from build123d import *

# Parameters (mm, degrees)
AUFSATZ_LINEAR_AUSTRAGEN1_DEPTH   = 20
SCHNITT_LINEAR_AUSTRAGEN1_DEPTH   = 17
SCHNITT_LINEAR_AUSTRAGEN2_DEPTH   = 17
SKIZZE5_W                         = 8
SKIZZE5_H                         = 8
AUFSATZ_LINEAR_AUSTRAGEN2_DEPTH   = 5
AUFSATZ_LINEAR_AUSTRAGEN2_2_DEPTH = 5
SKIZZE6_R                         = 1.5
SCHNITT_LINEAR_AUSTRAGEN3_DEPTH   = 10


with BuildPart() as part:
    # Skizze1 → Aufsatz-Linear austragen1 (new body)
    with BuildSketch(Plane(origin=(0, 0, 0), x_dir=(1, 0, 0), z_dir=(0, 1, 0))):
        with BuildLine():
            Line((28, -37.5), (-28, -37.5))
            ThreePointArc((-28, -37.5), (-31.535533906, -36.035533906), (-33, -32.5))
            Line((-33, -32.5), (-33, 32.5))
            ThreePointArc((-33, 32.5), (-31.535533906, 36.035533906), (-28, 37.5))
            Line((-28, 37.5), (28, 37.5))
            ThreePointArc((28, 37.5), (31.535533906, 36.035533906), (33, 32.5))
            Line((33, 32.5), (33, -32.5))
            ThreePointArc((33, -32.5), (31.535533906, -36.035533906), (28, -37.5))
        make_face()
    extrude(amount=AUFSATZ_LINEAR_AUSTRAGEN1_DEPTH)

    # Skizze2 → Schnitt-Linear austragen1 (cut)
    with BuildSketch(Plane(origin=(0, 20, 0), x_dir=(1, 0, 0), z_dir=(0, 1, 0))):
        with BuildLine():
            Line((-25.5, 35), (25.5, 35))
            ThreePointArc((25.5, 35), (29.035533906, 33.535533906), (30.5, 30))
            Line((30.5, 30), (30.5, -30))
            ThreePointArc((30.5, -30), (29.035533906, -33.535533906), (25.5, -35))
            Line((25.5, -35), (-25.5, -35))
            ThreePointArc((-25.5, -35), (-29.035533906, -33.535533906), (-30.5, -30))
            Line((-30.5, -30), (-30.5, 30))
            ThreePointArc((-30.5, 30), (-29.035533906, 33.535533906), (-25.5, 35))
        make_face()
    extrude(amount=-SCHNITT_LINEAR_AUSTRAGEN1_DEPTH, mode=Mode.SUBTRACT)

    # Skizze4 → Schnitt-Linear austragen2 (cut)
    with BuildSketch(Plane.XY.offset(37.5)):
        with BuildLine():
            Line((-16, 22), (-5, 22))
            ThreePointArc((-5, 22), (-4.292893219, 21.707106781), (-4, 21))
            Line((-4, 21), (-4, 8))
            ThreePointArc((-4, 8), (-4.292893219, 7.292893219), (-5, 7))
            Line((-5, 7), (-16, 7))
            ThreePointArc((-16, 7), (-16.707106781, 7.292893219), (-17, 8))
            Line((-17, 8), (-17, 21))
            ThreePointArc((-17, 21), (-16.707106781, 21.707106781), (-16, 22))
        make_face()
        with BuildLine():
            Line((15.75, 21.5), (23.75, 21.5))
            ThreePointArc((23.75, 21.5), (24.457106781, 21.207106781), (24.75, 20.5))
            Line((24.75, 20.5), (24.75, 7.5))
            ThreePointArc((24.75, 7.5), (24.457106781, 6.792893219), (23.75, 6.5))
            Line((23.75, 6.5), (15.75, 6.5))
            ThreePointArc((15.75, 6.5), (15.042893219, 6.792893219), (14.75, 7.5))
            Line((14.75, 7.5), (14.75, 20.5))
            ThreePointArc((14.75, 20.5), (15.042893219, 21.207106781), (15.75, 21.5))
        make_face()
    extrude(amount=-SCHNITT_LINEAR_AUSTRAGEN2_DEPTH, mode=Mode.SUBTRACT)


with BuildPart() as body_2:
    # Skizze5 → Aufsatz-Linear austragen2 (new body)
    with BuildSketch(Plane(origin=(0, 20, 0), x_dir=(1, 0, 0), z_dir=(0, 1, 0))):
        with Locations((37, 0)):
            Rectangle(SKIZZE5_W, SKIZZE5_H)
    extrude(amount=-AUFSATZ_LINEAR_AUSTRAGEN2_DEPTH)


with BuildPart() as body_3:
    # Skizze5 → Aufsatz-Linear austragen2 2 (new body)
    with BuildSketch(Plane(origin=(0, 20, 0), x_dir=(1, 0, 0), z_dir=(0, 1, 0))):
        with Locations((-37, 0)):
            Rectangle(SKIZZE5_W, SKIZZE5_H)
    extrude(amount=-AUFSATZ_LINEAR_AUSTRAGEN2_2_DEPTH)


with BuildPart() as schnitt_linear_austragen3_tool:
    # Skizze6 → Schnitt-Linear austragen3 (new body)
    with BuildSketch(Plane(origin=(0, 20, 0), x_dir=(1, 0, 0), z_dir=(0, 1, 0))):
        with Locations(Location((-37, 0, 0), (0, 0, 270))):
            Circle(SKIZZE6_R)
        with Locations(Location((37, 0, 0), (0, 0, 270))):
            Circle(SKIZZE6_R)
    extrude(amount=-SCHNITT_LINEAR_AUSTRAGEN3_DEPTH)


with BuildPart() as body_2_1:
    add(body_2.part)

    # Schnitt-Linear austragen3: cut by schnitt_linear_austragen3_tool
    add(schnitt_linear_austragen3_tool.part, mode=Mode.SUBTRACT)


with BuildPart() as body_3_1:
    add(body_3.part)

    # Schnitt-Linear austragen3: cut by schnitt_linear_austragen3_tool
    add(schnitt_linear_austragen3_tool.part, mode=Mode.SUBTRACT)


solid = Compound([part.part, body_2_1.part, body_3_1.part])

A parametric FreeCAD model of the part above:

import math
import FreeCAD as App
import Part
import Sketcher

V = App.Vector
Q = App.Units.Quantity


def add_polygon(sketch, points):
    """Adds a closed chain of lines whose ends are joined by coincident constraints."""
    first, n = sketch.GeometryCount, len(points)
    for a, b in zip(points, points[1:] + points[:1]):
        sketch.addGeometry(Part.LineSegment(App.Vector(*a, 0), App.Vector(*b, 0)), False)
    for i in range(n):
        sketch.addConstraint(Sketcher.Constraint("Coincident", first + i, 2, first + (i + 1) % n, 1))

doc = App.newDocument("Part")
body = doc.addObject("PartDesign::Body", "Body")

# Sketch on XZ plane
sketch1 = body.newObject("Sketcher::SketchObject", "Sketch")
sketch1.AttachmentSupport = (doc.getObject("XZ_Plane"), [""])
sketch1.MapMode = "FlatFace"
sketch1.addGeometry([
    Part.LineSegment(V(-28, 38, 0), V(28, 38, 0)),  # 0
    Part.ArcOfCircle(Part.Circle(V(28, 32, 0), V(0, 0, 1), 5), math.radians(0), math.radians(90)),  # 1
    Part.LineSegment(V(33, 32, 0), V(33, -32, 0)),  # 2
    Part.ArcOfCircle(Part.Circle(V(28, -32, 0), V(0, 0, 1), 5), math.radians(-90), math.radians(0)),  # 3
    Part.LineSegment(V(28, -38, 0), V(-28, -38, 0)),  # 4
    Part.ArcOfCircle(Part.Circle(V(-28, -32, 0), V(0, 0, 1), 5), math.radians(180), math.radians(270)),  # 5
    Part.LineSegment(V(-33, -32, 0), V(-33, 32, 0)),  # 6
    Part.ArcOfCircle(Part.Circle(V(-28, 32, 0), V(0, 0, 1), 5), math.radians(90), math.radians(180)),  # 7
], False)
sketch1.addConstraint([
    Sketcher.Constraint("Tangent", 0, 2, 1, 2),
    Sketcher.Constraint("Tangent", 1, 1, 2, 1),
    Sketcher.Constraint("Tangent", 2, 2, 3, 2),
    Sketcher.Constraint("Tangent", 3, 1, 4, 1),
    Sketcher.Constraint("Tangent", 4, 2, 5, 2),
    Sketcher.Constraint("Tangent", 5, 1, 6, 1),
    Sketcher.Constraint("Tangent", 6, 2, 7, 2),
    Sketcher.Constraint("Tangent", 7, 1, 0, 1),
    Sketcher.Constraint("Horizontal", 0),
    Sketcher.Constraint("Vertical", 2),
    Sketcher.Constraint("Horizontal", 4),
    Sketcher.Constraint("Vertical", 6),
    Sketcher.Constraint("Equal", 1, 3),
    Sketcher.Constraint("Equal", 3, 5),
    Sketcher.Constraint("Equal", 5, 7),
    Sketcher.Constraint("Symmetric", 1, 3, 5, 3, -1, 1),
    Sketcher.Constraint("Radius", 1, Q("5 mm")),
    Sketcher.Constraint("DistanceX", 0, 1, 0, 2, Q("56 mm")),
    Sketcher.Constraint("DistanceY", 2, 2, 2, 1, Q("65 mm")),
])
pad1 = body.newObject("PartDesign::Pad", "Pad")
pad1.Profile = sketch1
pad1.Length = 20
pad1.Reversed = True

# Sketch on XZ plane
sketch2 = body.newObject("Sketcher::SketchObject", "Sketch001")
sketch2.AttachmentSupport = (doc.getObject("XZ_Plane"), [""])
sketch2.MapMode = "FlatFace"
sketch2.AttachmentOffset = App.Placement(V(0, 0, -20), App.Rotation())
sketch2.addGeometry([
    Part.LineSegment(V(26, -35, 0), V(-26, -35, 0)),  # 0
    Part.ArcOfCircle(Part.Circle(V(-26, -30, 0), V(0, 0, 1), 5), math.radians(180), math.radians(270)),  # 1
    Part.LineSegment(V(-30, -30, 0), V(-30, 30, 0)),  # 2
    Part.ArcOfCircle(Part.Circle(V(-26, 30, 0), V(0, 0, 1), 5), math.radians(90), math.radians(180)),  # 3
    Part.LineSegment(V(-26, 35, 0), V(26, 35, 0)),  # 4
    Part.ArcOfCircle(Part.Circle(V(26, 30, 0), V(0, 0, 1), 5), math.radians(0), math.radians(90)),  # 5
    Part.LineSegment(V(30, 30, 0), V(30, -30, 0)),  # 6
    Part.ArcOfCircle(Part.Circle(V(26, -30, 0), V(0, 0, 1), 5), math.radians(-90), math.radians(0)),  # 7
], False)
sketch2.addConstraint([
    Sketcher.Constraint("Tangent", 0, 2, 1, 2),
    Sketcher.Constraint("Tangent", 1, 1, 2, 1),
    Sketcher.Constraint("Tangent", 2, 2, 3, 2),
    Sketcher.Constraint("Tangent", 3, 1, 4, 1),
    Sketcher.Constraint("Tangent", 4, 2, 5, 2),
    Sketcher.Constraint("Tangent", 5, 1, 6, 1),
    Sketcher.Constraint("Tangent", 6, 2, 7, 2),
    Sketcher.Constraint("Tangent", 7, 1, 0, 1),
    Sketcher.Constraint("Horizontal", 0),
    Sketcher.Constraint("Vertical", 2),
    Sketcher.Constraint("Horizontal", 4),
    Sketcher.Constraint("Vertical", 6),
    Sketcher.Constraint("Equal", 1, 3),
    Sketcher.Constraint("Equal", 3, 5),
    Sketcher.Constraint("Equal", 5, 7),
    Sketcher.Constraint("Symmetric", 1, 3, 5, 3, -1, 1),
    Sketcher.Constraint("Radius", 1, Q("5 mm")),
    Sketcher.Constraint("DistanceX", 0, 2, 0, 1, Q("51 mm")),
    Sketcher.Constraint("DistanceY", 2, 1, 2, 2, Q("60 mm")),
])
pocket1 = body.newObject("PartDesign::Pocket", "Pocket")
pocket1.Profile = sketch2
pocket1.Length = 17
pocket1.Reversed = True

# Sketch on XY plane
sketch3 = body.newObject("Sketcher::SketchObject", "Sketch002")
sketch3.AttachmentSupport = (doc.getObject("XY_Plane"), [""])
sketch3.MapMode = "FlatFace"
sketch3.AttachmentOffset = App.Placement(V(0, 0, 37.5), App.Rotation())
sketch3.addGeometry([
    Part.LineSegment(V(-5, 22, 0), V(-16, 22, 0)),  # 0
    Part.ArcOfCircle(Part.Circle(V(-16, 21, 0), V(0, 0, 1), 1), math.radians(90), math.radians(180)),  # 1
    Part.LineSegment(V(-17, 21, 0), V(-17, 8, 0)),  # 2
    Part.ArcOfCircle(Part.Circle(V(-16, 8, 0), V(0, 0, 1), 1), math.radians(-180), math.radians(-90)),  # 3
    Part.LineSegment(V(-16, 7, 0), V(-5, 7, 0)),  # 4
    Part.ArcOfCircle(Part.Circle(V(-5, 8, 0), V(0, 0, 1), 1), math.radians(-90), math.radians(0)),  # 5
    Part.LineSegment(V(-4, 8, 0), V(-4, 21, 0)),  # 6
    Part.ArcOfCircle(Part.Circle(V(-5, 21, 0), V(0, 0, 1), 1), math.radians(0), math.radians(90)),  # 7
    Part.LineSegment(V(23.8, 21.5, 0), V(15.8, 21.5, 0)),  # 8
    Part.ArcOfCircle(Part.Circle(V(15.8, 20.5, 0), V(0, 0, 1), 1), math.radians(90), math.radians(180)),  # 9
    Part.LineSegment(V(14.8, 20.5, 0), V(14.8, 7.5, 0)),  # 10
    Part.ArcOfCircle(Part.Circle(V(15.8, 7.5, 0), V(0, 0, 1), 1), math.radians(-180), math.radians(-90)),  # 11
    Part.LineSegment(V(15.8, 6.5, 0), V(23.8, 6.5, 0)),  # 12
    Part.ArcOfCircle(Part.Circle(V(23.7, 7.5, 0), V(0, 0, 1), 1), math.radians(-90), math.radians(0)),  # 13
    Part.LineSegment(V(24.8, 7.5, 0), V(24.8, 20.5, 0)),  # 14
    Part.ArcOfCircle(Part.Circle(V(23.7, 20.5, 0), V(0, 0, 1), 1), math.radians(0), math.radians(90)),  # 15
], False)
sketch3.addConstraint([
    Sketcher.Constraint("Tangent", 0, 2, 1, 1),
    Sketcher.Constraint("Tangent", 1, 2, 2, 1),
    Sketcher.Constraint("Tangent", 2, 2, 3, 1),
    Sketcher.Constraint("Tangent", 3, 2, 4, 1),
    Sketcher.Constraint("Tangent", 4, 2, 5, 1),
    Sketcher.Constraint("Tangent", 5, 2, 6, 1),
    Sketcher.Constraint("Tangent", 6, 2, 7, 1),
    Sketcher.Constraint("Tangent", 7, 2, 0, 1),
    Sketcher.Constraint("Tangent", 8, 2, 9, 1),
    Sketcher.Constraint("Tangent", 9, 2, 10, 1),
    Sketcher.Constraint("Tangent", 10, 2, 11, 1),
    Sketcher.Constraint("Tangent", 11, 2, 12, 1),
    Sketcher.Constraint("Tangent", 12, 2, 13, 1),
    Sketcher.Constraint("Tangent", 13, 2, 14, 1),
    Sketcher.Constraint("Tangent", 14, 2, 15, 1),
    Sketcher.Constraint("Tangent", 15, 2, 8, 1),
    Sketcher.Constraint("Horizontal", 0),
    Sketcher.Constraint("Vertical", 2),
    Sketcher.Constraint("Horizontal", 4),
    Sketcher.Constraint("Vertical", 6),
    Sketcher.Constraint("Horizontal", 8),
    Sketcher.Constraint("Vertical", 10),
    Sketcher.Constraint("Horizontal", 12),
    Sketcher.Constraint("Vertical", 14),
    Sketcher.Constraint("Equal", 1, 3),
    Sketcher.Constraint("Equal", 3, 5),
    Sketcher.Constraint("Equal", 5, 7),
    Sketcher.Constraint("Equal", 7, 9),
    Sketcher.Constraint("Equal", 9, 11),
    Sketcher.Constraint("Equal", 11, 13),
    Sketcher.Constraint("Equal", 13, 15),
    Sketcher.Constraint("Equal", 6, 10),
    Sketcher.Constraint("Radius", 1, Q("1 mm")),
    Sketcher.Constraint("DistanceX", 0, 2, 0, 1, Q("11 mm")),
    Sketcher.Constraint("DistanceX", 8, 2, 8, 1, Q("8 mm")),
    Sketcher.Constraint("DistanceY", 2, 2, 2, 1, Q("13 mm")),
    Sketcher.Constraint("DistanceX", 1, 3, -1, 1, Q("16 mm")),
    Sketcher.Constraint("DistanceY", -1, 1, 1, 3, Q("21 mm")),
    Sketcher.Constraint("DistanceY", -1, 1, 9, 3, Q("20.5 mm")),
    Sketcher.Constraint("DistanceX", -1, 1, 9, 3, Q("15.75 mm")),
])
pocket2 = body.newObject("PartDesign::Pocket", "Pocket001")
pocket2.Profile = sketch3
pocket2.Length = 17
body2 = doc.addObject("PartDesign::Body", "Body001")

# Sketch on XZ plane
sketch4 = body2.newObject("Sketcher::SketchObject", "Sketch003")
sketch4.AttachmentSupport = (doc.getObject("XZ_Plane001"), [""])
sketch4.MapMode = "FlatFace"
sketch4.AttachmentOffset = App.Placement(V(0, 0, -20), App.Rotation())
add_polygon(sketch4, [(33, -4), (33, 4), (41, 4), (41, -4)])  # lines 0-3
sketch4.addConstraint([
    Sketcher.Constraint("Vertical", 0),
    Sketcher.Constraint("Horizontal", 1),
    Sketcher.Constraint("Vertical", 2),
    Sketcher.Constraint("Horizontal", 3),
    Sketcher.Constraint("Equal", 3, 0),
    Sketcher.Constraint("DistanceX", 1, 1, 1, 2, Q("8 mm")),
    Sketcher.Constraint("DistanceX", -1, 1, 0, 2, Q("33 mm")),
    Sketcher.Constraint("DistanceY", -1, 1, 0, 2, Q("4 mm")),
])
pad2 = body2.newObject("PartDesign::Pad", "Pad001")
pad2.Profile = sketch4
pad2.Length = 5
body3 = doc.addObject("PartDesign::Body", "Body002")

# Sketch on XZ plane
sketch5 = body3.newObject("Sketcher::SketchObject", "Sketch004")
sketch5.AttachmentSupport = (doc.getObject("XZ_Plane002"), [""])
sketch5.MapMode = "FlatFace"
sketch5.AttachmentOffset = App.Placement(V(0, 0, -20), App.Rotation())
add_polygon(sketch5, [(-41, -4), (-41, 4), (-33, 4), (-33, -4)])  # lines 0-3
sketch5.addConstraint([
    Sketcher.Constraint("Vertical", 0),
    Sketcher.Constraint("Horizontal", 1),
    Sketcher.Constraint("Vertical", 2),
    Sketcher.Constraint("Horizontal", 3),
    Sketcher.Constraint("Equal", 3, 0),
    Sketcher.Constraint("DistanceX", 1, 1, 1, 2, Q("8 mm")),
    Sketcher.Constraint("DistanceX", 0, 2, -1, 1, Q("41 mm")),
    Sketcher.Constraint("DistanceY", -1, 1, 0, 2, Q("4 mm")),
])
pad3 = body3.newObject("PartDesign::Pad", "Pad002")
pad3.Profile = sketch5
pad3.Length = 5
body4 = doc.addObject("PartDesign::Body", "Body003")
body4.AllowCompound = True

# Sketch on XZ plane
sketch6 = body4.newObject("Sketcher::SketchObject", "Sketch005")
sketch6.AttachmentSupport = (doc.getObject("XZ_Plane003"), [""])
sketch6.MapMode = "FlatFace"
sketch6.AttachmentOffset = App.Placement(V(0, 0, -20), App.Rotation())
sketch6.addGeometry([
    Part.Circle(V(-37, 0, 0), V(0, 0, 1), 1.5),
    Part.Circle(V(37, 0, 0), V(0, 0, 1), 1.5),
], False)
sketch6.addConstraint([
    Sketcher.Constraint("Equal", 0, 1),
    Sketcher.Constraint("Symmetric", 0, 3, 1, 3, -1, 1),
    Sketcher.Constraint("PointOnObject", 0, 3, -1),
    Sketcher.Constraint("Diameter", 0, Q("3 mm")),
    Sketcher.Constraint("DistanceX", 0, 3, -1, 1, Q("37 mm")),
])
pad4 = body4.newObject("PartDesign::Pad", "Pad003")
pad4.Profile = sketch6
pad4.Length = 10
doc.recompute()

body5 = doc.addObject("PartDesign::Body", "Body004")
body5.BaseFeature = body4
boolean = body2.newObject("PartDesign::Boolean", "Boolean")
boolean.Type = "Cut"
boolean.addObjects([body5])
doc.recompute()

boolean2 = body3.newObject("PartDesign::Boolean", "Boolean001")
boolean2.Type = "Cut"
boolean2.addObjects([body4])

doc.recompute()
